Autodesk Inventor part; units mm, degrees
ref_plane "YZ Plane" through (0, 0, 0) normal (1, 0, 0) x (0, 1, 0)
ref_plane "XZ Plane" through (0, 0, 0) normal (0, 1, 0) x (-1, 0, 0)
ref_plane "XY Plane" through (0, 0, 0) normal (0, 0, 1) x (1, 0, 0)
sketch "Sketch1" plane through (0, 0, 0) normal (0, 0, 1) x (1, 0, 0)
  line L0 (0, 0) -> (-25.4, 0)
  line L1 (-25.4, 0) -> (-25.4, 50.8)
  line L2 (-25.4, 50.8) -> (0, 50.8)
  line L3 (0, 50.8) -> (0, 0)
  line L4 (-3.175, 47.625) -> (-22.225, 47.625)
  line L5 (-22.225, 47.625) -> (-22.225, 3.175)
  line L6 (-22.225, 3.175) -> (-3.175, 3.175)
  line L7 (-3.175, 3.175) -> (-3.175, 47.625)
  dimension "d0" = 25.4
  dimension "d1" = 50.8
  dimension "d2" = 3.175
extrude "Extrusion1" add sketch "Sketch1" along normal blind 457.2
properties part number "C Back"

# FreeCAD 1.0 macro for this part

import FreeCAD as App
import Part
import Sketcher
from FreeCAD import Vector
Q = App.Units.Quantity

doc = App.newDocument("Part")
body = doc.addObject("PartDesign::Body", "Body")

sketch1 = doc.addObject("Sketcher::SketchObject", "Sketch")
body.addObject(sketch1)
sketch1.AttachmentSupport = (doc.XY_Plane, [""])
sketch1.MapMode = "FlatFace"
sketch1.addGeometry(Part.LineSegment(Vector(-25.4, 0, 0), Vector(0, 0, 0)), False)
sketch1.addGeometry(Part.LineSegment(Vector(0, 0, 0), Vector(0, 50.8, 0)), False)
sketch1.addGeometry(Part.LineSegment(Vector(0, 50.8, 0), Vector(-25.4, 50.8, 0)), False)
sketch1.addGeometry(Part.LineSegment(Vector(-25.4, 50.8, 0), Vector(-25.4, 0, 0)), False)
sketch1.addGeometry(Part.LineSegment(Vector(-22.225, 47.625, 0), Vector(-3.175, 47.625, 0)), False)
sketch1.addGeometry(Part.LineSegment(Vector(-3.175, 47.625, 0), Vector(-3.175, 3.175, 0)), False)
sketch1.addGeometry(Part.LineSegment(Vector(-3.175, 3.175, 0), Vector(-22.225, 3.175, 0)), False)
sketch1.addGeometry(Part.LineSegment(Vector(-22.225, 3.175, 0), Vector(-22.225, 47.625, 0)), False)
sketch1.addConstraint(Sketcher.Constraint("Coincident", 0, 2, 1, 1))
sketch1.addConstraint(Sketcher.Constraint("Coincident", 1, 2, 2, 1))
sketch1.addConstraint(Sketcher.Constraint("Coincident", 2, 2, 3, 1))
sketch1.addConstraint(Sketcher.Constraint("Coincident", 3, 2, 0, 1))
sketch1.addConstraint(Sketcher.Constraint("Coincident", 4, 2, 5, 1))
sketch1.addConstraint(Sketcher.Constraint("Coincident", 5, 2, 6, 1))
sketch1.addConstraint(Sketcher.Constraint("Coincident", 6, 2, 7, 1))
sketch1.addConstraint(Sketcher.Constraint("Coincident", 7, 2, 4, 1))
sketch1.addConstraint(Sketcher.Constraint("Horizontal", 0))
sketch1.addConstraint(Sketcher.Constraint("Vertical", 1))
sketch1.addConstraint(Sketcher.Constraint("Horizontal", 2))
sketch1.addConstraint(Sketcher.Constraint("Vertical", 3))
sketch1.addConstraint(Sketcher.Constraint("Horizontal", 4))
sketch1.addConstraint(Sketcher.Constraint("Vertical", 5))
sketch1.addConstraint(Sketcher.Constraint("Horizontal", 6))
sketch1.addConstraint(Sketcher.Constraint("Vertical", 7))
sketch1.addConstraint(Sketcher.Constraint("Coincident", 0, 2, -1, 1))
sketch1.addConstraint(Sketcher.Constraint("DistanceX", 0, 1, 0, 2, Q("1 in")))
sketch1.addConstraint(Sketcher.Constraint("DistanceY", 1, 1, 1, 2, Q("2 in")))
sketch1.addConstraint(Sketcher.Constraint("DistanceX", 4, 2, -1, 1, Q("0.125 in")))
sketch1.addConstraint(Sketcher.Constraint("DistanceY", -1, 1, 5, 2, Q("0.125 in")))
sketch1.addConstraint(Sketcher.Constraint("DistanceY", 4, 2, 1, 2, Q("0.125 in")))
sketch1.addConstraint(Sketcher.Constraint("DistanceX", 3, 2, 6, 2, Q("0.125 in")))
pad1 = doc.addObject("PartDesign::Pad", "Pad")
body.addObject(pad1)
pad1.Profile = sketch1
pad1.Length = Q("18 in")

doc.recompute()
